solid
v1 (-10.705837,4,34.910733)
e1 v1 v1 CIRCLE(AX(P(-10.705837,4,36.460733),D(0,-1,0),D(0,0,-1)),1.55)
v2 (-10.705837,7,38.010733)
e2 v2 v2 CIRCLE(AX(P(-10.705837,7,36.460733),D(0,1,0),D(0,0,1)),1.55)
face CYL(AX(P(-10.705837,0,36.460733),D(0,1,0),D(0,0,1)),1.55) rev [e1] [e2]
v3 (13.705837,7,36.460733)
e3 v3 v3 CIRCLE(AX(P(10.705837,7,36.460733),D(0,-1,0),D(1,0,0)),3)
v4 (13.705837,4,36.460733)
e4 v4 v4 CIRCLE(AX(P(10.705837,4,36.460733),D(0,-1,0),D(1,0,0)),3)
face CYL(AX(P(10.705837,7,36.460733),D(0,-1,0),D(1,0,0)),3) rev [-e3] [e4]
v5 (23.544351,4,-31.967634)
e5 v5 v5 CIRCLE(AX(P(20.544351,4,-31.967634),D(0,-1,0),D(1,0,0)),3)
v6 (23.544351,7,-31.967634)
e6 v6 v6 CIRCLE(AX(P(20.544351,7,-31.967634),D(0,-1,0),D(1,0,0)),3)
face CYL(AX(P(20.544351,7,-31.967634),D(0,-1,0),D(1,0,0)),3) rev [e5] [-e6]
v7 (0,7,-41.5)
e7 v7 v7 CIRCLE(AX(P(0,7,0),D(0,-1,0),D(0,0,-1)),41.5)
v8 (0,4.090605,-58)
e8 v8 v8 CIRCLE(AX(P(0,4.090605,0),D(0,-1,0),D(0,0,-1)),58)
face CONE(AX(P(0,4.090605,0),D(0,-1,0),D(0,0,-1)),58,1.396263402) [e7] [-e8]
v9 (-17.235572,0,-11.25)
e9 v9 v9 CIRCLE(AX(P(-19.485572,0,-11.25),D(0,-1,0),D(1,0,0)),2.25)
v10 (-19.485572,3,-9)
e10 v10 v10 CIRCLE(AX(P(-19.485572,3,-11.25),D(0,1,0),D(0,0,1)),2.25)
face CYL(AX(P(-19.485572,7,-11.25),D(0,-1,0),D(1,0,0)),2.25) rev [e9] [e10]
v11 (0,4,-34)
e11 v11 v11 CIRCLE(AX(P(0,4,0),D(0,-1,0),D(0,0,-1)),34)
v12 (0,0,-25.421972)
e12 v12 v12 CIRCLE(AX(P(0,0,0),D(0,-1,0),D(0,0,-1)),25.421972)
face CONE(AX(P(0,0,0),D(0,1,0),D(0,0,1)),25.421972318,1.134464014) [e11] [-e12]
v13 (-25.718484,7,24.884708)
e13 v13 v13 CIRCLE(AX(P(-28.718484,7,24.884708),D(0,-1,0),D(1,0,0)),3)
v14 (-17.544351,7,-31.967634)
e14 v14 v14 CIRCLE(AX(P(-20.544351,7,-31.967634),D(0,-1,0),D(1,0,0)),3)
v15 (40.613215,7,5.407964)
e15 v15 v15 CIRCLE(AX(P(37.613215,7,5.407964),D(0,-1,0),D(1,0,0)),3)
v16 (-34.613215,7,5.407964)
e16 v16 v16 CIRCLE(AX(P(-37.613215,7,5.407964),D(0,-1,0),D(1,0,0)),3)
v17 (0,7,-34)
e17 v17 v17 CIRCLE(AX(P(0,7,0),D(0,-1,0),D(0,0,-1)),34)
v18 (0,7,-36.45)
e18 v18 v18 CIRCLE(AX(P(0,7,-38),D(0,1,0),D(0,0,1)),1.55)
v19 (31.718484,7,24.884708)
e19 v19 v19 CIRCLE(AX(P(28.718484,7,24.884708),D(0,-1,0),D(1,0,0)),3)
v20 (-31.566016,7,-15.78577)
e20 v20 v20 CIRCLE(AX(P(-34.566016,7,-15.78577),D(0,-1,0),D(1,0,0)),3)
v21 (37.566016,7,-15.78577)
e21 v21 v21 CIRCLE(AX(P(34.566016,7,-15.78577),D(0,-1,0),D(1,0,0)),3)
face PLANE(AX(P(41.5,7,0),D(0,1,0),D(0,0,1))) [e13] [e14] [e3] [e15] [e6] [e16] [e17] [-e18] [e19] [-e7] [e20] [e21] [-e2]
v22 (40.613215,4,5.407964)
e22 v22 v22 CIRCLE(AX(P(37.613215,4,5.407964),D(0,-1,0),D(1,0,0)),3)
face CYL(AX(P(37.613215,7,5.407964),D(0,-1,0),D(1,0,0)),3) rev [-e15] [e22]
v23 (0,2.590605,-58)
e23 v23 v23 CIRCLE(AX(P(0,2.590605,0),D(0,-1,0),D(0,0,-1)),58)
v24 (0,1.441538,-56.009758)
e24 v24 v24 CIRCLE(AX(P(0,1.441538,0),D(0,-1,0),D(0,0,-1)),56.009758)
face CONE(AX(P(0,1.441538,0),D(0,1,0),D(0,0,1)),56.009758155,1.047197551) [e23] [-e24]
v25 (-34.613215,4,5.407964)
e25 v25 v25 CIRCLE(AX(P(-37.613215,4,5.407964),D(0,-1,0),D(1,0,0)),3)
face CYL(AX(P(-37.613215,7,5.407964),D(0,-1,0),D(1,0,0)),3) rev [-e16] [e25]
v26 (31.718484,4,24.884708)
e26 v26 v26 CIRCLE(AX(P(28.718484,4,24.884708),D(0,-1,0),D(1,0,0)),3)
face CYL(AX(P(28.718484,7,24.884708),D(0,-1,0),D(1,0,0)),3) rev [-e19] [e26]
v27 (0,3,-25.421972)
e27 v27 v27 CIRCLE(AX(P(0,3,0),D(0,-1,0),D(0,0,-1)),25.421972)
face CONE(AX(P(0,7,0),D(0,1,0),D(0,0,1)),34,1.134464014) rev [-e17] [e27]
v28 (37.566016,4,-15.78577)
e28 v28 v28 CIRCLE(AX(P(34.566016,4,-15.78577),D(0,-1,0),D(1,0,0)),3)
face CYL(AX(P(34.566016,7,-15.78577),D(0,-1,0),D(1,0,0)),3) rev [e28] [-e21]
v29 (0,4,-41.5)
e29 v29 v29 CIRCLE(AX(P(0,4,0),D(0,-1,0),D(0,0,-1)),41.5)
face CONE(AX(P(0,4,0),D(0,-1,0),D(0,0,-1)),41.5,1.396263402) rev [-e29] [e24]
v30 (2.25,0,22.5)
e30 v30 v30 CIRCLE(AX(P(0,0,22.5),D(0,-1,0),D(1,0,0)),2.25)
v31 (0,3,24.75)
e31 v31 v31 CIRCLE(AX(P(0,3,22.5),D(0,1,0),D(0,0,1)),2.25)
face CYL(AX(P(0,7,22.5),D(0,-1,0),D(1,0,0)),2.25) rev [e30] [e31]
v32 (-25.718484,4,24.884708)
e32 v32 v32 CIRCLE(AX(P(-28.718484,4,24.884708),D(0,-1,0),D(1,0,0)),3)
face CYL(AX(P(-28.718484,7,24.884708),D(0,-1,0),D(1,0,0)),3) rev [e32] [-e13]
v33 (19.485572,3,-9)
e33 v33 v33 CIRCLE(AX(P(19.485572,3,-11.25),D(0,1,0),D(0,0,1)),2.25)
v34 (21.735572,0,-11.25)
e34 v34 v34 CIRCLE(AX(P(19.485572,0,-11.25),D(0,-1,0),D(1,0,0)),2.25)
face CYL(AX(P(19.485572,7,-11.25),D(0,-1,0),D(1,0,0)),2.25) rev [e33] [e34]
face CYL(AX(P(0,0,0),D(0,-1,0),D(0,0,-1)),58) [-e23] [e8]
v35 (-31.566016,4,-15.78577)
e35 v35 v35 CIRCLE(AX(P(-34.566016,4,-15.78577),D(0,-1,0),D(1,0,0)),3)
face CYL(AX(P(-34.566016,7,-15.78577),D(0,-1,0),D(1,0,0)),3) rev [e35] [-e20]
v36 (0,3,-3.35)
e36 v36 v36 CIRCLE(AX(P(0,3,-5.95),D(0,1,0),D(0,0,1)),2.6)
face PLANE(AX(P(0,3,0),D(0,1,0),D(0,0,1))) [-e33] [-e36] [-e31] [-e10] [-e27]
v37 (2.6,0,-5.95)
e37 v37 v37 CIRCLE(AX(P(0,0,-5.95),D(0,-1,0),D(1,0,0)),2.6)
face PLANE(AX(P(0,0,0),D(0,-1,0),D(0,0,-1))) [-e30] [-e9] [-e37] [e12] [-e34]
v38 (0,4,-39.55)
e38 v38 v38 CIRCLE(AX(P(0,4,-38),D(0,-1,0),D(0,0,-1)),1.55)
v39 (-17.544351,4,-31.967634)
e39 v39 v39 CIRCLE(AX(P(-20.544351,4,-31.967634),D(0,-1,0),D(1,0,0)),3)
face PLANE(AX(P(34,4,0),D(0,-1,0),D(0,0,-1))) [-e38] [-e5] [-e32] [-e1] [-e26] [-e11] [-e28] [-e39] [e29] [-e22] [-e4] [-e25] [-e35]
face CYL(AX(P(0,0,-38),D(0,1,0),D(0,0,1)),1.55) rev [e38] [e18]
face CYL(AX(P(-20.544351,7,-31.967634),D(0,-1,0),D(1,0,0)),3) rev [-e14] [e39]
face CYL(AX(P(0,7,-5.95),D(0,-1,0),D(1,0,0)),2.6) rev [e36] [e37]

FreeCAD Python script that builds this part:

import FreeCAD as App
import Part
import Sketcher

V = App.Vector
Q = App.Units.Quantity


def add_polygon(sketch, points):
    """Adds a closed chain of lines whose ends are joined by coincident constraints."""
    first, n = sketch.GeometryCount, len(points)
    for a, b in zip(points, points[1:] + points[:1]):
        sketch.addGeometry(Part.LineSegment(App.Vector(*a, 0), App.Vector(*b, 0)), False)
    for i in range(n):
        sketch.addConstraint(Sketcher.Constraint("Coincident", first + i, 2, first + (i + 1) % n, 1))

doc = App.newDocument("Part")
body = doc.addObject("PartDesign::Body", "Body")

# Sketch on XY plane
sketch1 = body.newObject("Sketcher::SketchObject", "Sketch")
sketch1.AttachmentSupport = (doc.getObject("XY_Plane"), [""])
sketch1.MapMode = "FlatFace"
add_polygon(sketch1, [(25.4, 0), (34, 4), (41.5, 4), (56, 1.4), (58, 2.6), (58, 4.1), (41.5, 7), (34, 7), (25.4, 3), (0, 3), (0, 0)])  # lines 0-10
sketch1.addConstraint([
    Sketcher.Constraint("Horizontal", 1),
    Sketcher.Constraint("Vertical", 4),
    Sketcher.Constraint("Horizontal", 6),
    Sketcher.Constraint("Horizontal", 8),
    Sketcher.Constraint("Vertical", 9),
    Sketcher.Constraint("Horizontal", 10),
    Sketcher.Constraint("Coincident", 9, 2, -1, 1),
    Sketcher.Constraint("Parallel", 2, 5),
    Sketcher.Constraint("Parallel", 0, 7),
    Sketcher.Constraint("Vertical", 1, 2, 5, 2),
    Sketcher.Constraint("Vertical", 0, 2, 6, 2),
    Sketcher.Constraint("Vertical", 7, 2, 10, 2),
    Sketcher.Constraint("DistanceY", 9, 2, 9, 1, Q("3 mm")),
    Sketcher.Constraint("Angle", 0, Q("25 deg")),
    Sketcher.Constraint("Angle", 2, Q("-10 deg")),
    Sketcher.Constraint("Angle", 3, Q("30 deg")),
    Sketcher.Constraint("DistanceX", 1, 1, 1, 2, Q("7.5 mm")),
    Sketcher.Constraint("DistanceY", 4, 1, 4, 2, Q("1.5 mm")),
    Sketcher.Constraint("DistanceX", -1, 1, 0, 2, Q("34 mm")),
    Sketcher.Constraint("DistanceY", -1, 1, 0, 2, Q("4 mm")),
    Sketcher.Constraint("DistanceX", -1, 1, 3, 2, Q("58 mm")),
])
revolution = body.newObject("PartDesign::Revolution", "Revolution")
revolution.Profile = sketch1
revolution.ReferenceAxis = (sketch1, ["V_Axis"])
revolution.Angle = 360

# Sketch on XZ plane
sketch2 = body.newObject("Sketcher::SketchObject", "Sketch001")
sketch2.AttachmentSupport = (doc.getObject("XZ_Plane"), [""])
sketch2.MapMode = "FlatFace"
sketch2.AttachmentOffset = App.Placement(V(0, 0, -7), App.Rotation())
sketch2.addGeometry([
    Part.Circle(V(0, -38, 0), V(0, 0, 1), 1.6),  # 0
    Part.Circle(V(20.5, -32, 0), V(0, 0, 1), 1.6),  # 1
    Part.Circle(V(34.6, -15.8, 0), V(0, 0, 1), 1.6),  # 2
    Part.Circle(V(37.6, 5.4, 0), V(0, 0, 1), 1.6),  # 3
    Part.Circle(V(28.7, 24.9, 0), V(0, 0, 1), 1.6),  # 4
    Part.Circle(V(10.7, 36.5, 0), V(0, 0, 1), 1.6),  # 5
    Part.Circle(V(-10.7, 36.5, 0), V(0, 0, 1), 1.6),  # 6
    Part.Circle(V(-28.7, 24.9, 0), V(0, 0, 1), 1.6),  # 7
    Part.Circle(V(-37.6, 5.4, 0), V(0, 0, 1), 1.6),  # 8
    Part.Circle(V(-34.6, -15.8, 0), V(0, 0, 1), 1.6),  # 9
    Part.Circle(V(-20.5, -32, 0), V(0, 0, 1), 1.6),  # 10
], False)
sketch2.addConstraint([
    Sketcher.Constraint("Equal", 0, 1),
    Sketcher.Constraint("Equal", 1, 2),
    Sketcher.Constraint("Equal", 2, 3),
    Sketcher.Constraint("Equal", 3, 4),
    Sketcher.Constraint("Equal", 4, 5),
    Sketcher.Constraint("Equal", 5, 6),
    Sketcher.Constraint("Equal", 6, 7),
    Sketcher.Constraint("Equal", 7, 8),
    Sketcher.Constraint("Equal", 8, 9),
    Sketcher.Constraint("Equal", 9, 10),
    Sketcher.Constraint("Symmetric", 5, 3, 6, 3, -2),
    Sketcher.Constraint("Symmetric", 4, 3, 7, 3, -2),
    Sketcher.Constraint("Symmetric", 3, 3, 8, 3, -2),
    Sketcher.Constraint("Symmetric", 2, 3, 9, 3, -2),
    Sketcher.Constraint("Symmetric", 1, 3, 10, 3, -2),
    Sketcher.Constraint("PointOnObject", 0, 3, -2),
    Sketcher.Constraint("Diameter", 0, Q("3.1 mm")),
    Sketcher.Constraint("DistanceY", 0, 3, -1, 1, Q("38 mm")),
    Sketcher.Constraint("DistanceX", 2, 3, 3, 3, Q("3.047199 mm")),
    Sketcher.Constraint("DistanceY", 1, 3, 3, 3, Q("37.375598 mm")),
    Sketcher.Constraint("DistanceX", 7, 3, 3, 3, Q("66.331699 mm")),
    Sketcher.Constraint("DistanceX", -1, 1, 1, 3, Q("20.544351 mm")),
    Sketcher.Constraint("DistanceY", 2, 3, -1, 1, Q("15.78577 mm")),
    Sketcher.Constraint("DistanceX", 4, 3, 3, 3, Q("8.894731 mm")),
    Sketcher.Constraint("DistanceY", 2, 3, 4, 3, Q("40.670478 mm")),
    Sketcher.Constraint("DistanceY", 3, 3, 5, 3, Q("31.052769 mm")),
    Sketcher.Constraint("DistanceX", 5, 3, 2, 3, Q("23.860179 mm")),
    Sketcher.Constraint("DistanceY", 1, 3, -1, 1, Q("31.967634 mm")),
])
pocket1 = body.newObject("PartDesign::Pocket", "Pocket")
pocket1.Profile = sketch2
pocket1.Type = "ThroughAll"
pocket1.Reversed = True

# Sketch on XZ plane
sketch3 = body.newObject("Sketcher::SketchObject", "Sketch002")
sketch3.AttachmentSupport = (doc.getObject("XZ_Plane"), [""])
sketch3.MapMode = "FlatFace"
sketch3.AttachmentOffset = App.Placement(V(0, 0, -4), App.Rotation())
sketch3.addGeometry([
    Part.Circle(V(10.7, 36.5, 0), V(0, 0, 1), 3),  # 0
    Part.Circle(V(28.7, 24.9, 0), V(0, 0, 1), 3),  # 1
    Part.Circle(V(37.6, 5.4, 0), V(0, 0, 1), 3),  # 2
    Part.Circle(V(-28.7, 24.9, 0), V(0, 0, 1), 3),  # 3
    Part.Circle(V(-34.6, -15.8, 0), V(0, 0, 1), 3),  # 4
    Part.Circle(V(-20.5, -32, 0), V(0, 0, 1), 3),  # 5
    Part.Circle(V(20.5, -32, 0), V(0, 0, 1), 3),  # 6
    Part.Circle(V(34.6, -15.8, 0), V(0, 0, 1), 3),  # 7
    Part.Circle(V(-37.6, 5.4, 0), V(0, 0, 1), 3),  # 8
], False)
sketch3.addConstraint([
    Sketcher.Constraint("Equal", 0, 1),
    Sketcher.Constraint("Equal", 1, 2),
    Sketcher.Constraint("Equal", 2, 3),
    Sketcher.Constraint("Equal", 3, 4),
    Sketcher.Constraint("Equal", 4, 5),
    Sketcher.Constraint("Equal", 5, 6),
    Sketcher.Constraint("Equal", 6, 7),
    Sketcher.Constraint("Equal", 7, 8),
    Sketcher.Constraint("Symmetric", 1, 3, 3, 3, -2),
    Sketcher.Constraint("Symmetric", 5, 3, 6, 3, -2),
    Sketcher.Constraint("Symmetric", 4, 3, 7, 3, -2),
    Sketcher.Constraint("Symmetric", 2, 3, 8, 3, -2),
    Sketcher.Constraint("Diameter", 0, Q("6 mm")),
    Sketcher.Constraint("DistanceX", 3, 3, 2, 3, Q("66.331699 mm")),
    Sketcher.Constraint("DistanceX", 4, 3, 1, 3, Q("63.2845 mm")),
    Sketcher.Constraint("DistanceY", 5, 3, 2, 3, Q("37.375598 mm")),
    Sketcher.Constraint("DistanceY", 4, 3, -1, 1, Q("15.78577 mm")),
    Sketcher.Constraint("DistanceX", 5, 3, -1, 1, Q("20.544351 mm")),
    Sketcher.Constraint("DistanceX", 1, 3, 2, 3, Q("8.894731 mm")),
    Sketcher.Constraint("DistanceY", 2, 3, 0, 3, Q("31.052769 mm")),
    Sketcher.Constraint("DistanceX", 3, 3, 0, 3, Q("39.424321 mm")),
    Sketcher.Constraint("DistanceY", 4, 3, 3, 3, Q("40.670478 mm")),
    Sketcher.Constraint("DistanceY", -1, 1, 0, 3, Q("36.460733 mm")),
])
pocket2 = body.newObject("PartDesign::Pocket", "Pocket001")
pocket2.Profile = sketch3
pocket2.Type = "ThroughAll"

# Sketch on XZ plane
sketch4 = body.newObject("Sketcher::SketchObject", "Sketch003")
sketch4.AttachmentSupport = (doc.getObject("XZ_Plane"), [""])
sketch4.MapMode = "FlatFace"
sketch4.addGeometry([
    Part.Circle(V(-19.5, -11.2, 0), V(0, 0, 1), 2.2),
    Part.Circle(V(19.5, -11.2, 0), V(0, 0, 1), 2.2),
    Part.Circle(V(0, 22.5, 0), V(0, 0, 1), 2.2),
    Part.Circle(V(0, -6, 0), V(0, 0, 1), 2.6),
], False)
sketch4.addConstraint([
    Sketcher.Constraint("Equal", 0, 1),
    Sketcher.Constraint("Equal", 1, 2),
    Sketcher.Constraint("Symmetric", 0, 3, 1, 3, -2),
    Sketcher.Constraint("PointOnObject", 2, 3, -2),
    Sketcher.Constraint("PointOnObject", 3, 3, -2),
    Sketcher.Constraint("Diameter", 0, Q("4.5 mm")),
    Sketcher.Constraint("Diameter", 3, Q("5.2 mm")),
    Sketcher.Constraint("DistanceY", -1, 1, 2, 3, Q("22.5 mm")),
    Sketcher.Constraint("DistanceY", 0, 3, 3, 3, Q("5.3 mm")),
    Sketcher.Constraint("DistanceY", 0, 3, -1, 1, Q("11.25 mm")),
    Sketcher.Constraint("DistanceX", 0, 3, -1, 1, Q("19.485572 mm")),
])
pocket3 = body.newObject("PartDesign::Pocket", "Pocket002")
pocket3.Profile = sketch4
pocket3.Type = "ThroughAll"

doc.recompute()
